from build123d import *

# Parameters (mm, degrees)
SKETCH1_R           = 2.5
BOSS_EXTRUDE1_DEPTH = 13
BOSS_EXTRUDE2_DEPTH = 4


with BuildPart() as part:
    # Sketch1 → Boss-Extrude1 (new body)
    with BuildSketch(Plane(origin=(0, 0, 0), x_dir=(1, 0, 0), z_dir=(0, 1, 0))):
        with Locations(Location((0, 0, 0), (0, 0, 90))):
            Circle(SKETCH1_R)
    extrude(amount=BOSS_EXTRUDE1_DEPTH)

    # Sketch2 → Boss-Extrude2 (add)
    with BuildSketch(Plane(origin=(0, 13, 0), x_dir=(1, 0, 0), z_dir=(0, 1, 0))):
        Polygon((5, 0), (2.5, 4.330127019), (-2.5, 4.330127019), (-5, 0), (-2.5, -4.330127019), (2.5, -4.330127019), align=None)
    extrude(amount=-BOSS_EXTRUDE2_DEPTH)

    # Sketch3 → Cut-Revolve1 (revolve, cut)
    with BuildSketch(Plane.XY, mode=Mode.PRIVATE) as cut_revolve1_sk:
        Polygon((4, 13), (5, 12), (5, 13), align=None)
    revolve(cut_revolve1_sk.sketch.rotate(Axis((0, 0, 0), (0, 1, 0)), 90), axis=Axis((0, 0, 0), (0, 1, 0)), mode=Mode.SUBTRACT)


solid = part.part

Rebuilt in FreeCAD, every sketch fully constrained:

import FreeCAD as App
import Part
import Sketcher

V = App.Vector
Q = App.Units.Quantity

doc = App.newDocument("Part")
body = doc.addObject("PartDesign::Body", "Body")

sketch1 = doc.addObject("Sketcher::SketchObject", "Sketch")
body.addObject(sketch1)
sketch1.AttachmentSupport = (doc.XZ_Plane, [""])
sketch1.MapMode = "FlatFace"
sketch1.addGeometry(Part.Circle(V(0, 0, 0), V(0, 0, 1), 2.5), False)
sketch1.addConstraint([
    Sketcher.Constraint("Coincident", 0, 3, -1, 1),
    Sketcher.Constraint("Diameter", 0, 5.0),
])
pad1 = doc.addObject("PartDesign::Pad", "Pad")
body.addObject(pad1)
pad1.Profile = sketch1
pad1.Length = 13
pad1.Reversed = True

sketch2 = doc.addObject("Sketcher::SketchObject", "Sketch001")
body.addObject(sketch2)
sketch2.AttachmentSupport = (doc.XZ_Plane, [""])
sketch2.MapMode = "FlatFace"
sketch2.AttachmentOffset = App.Placement(V(0, 0, -13), App.Rotation())
sketch2.addGeometry([
    Part.LineSegment(V(5, 0, 0), V(2, -4, 0)),
    Part.LineSegment(V(2, -4, 0), V(-2, -4, 0)),
    Part.LineSegment(V(-2, -4, 0), V(-5, 0, 0)),
    Part.LineSegment(V(-5, 0, 0), V(-2, 4, 0)),
    Part.LineSegment(V(-2, 4, 0), V(2, 4, 0)),
    Part.LineSegment(V(2, 4, 0), V(5, 0, 0)),
], False)
sketch2.addConstraint([
    Sketcher.Constraint("Coincident", 0, 2, 1, 1),
    Sketcher.Constraint("Coincident", 1, 2, 2, 1),
    Sketcher.Constraint("Coincident", 2, 2, 3, 1),
    Sketcher.Constraint("Coincident", 3, 2, 4, 1),
    Sketcher.Constraint("Coincident", 4, 2, 5, 1),
    Sketcher.Constraint("Coincident", 5, 2, 0, 1),
    Sketcher.Constraint("Horizontal", 1),
    Sketcher.Constraint("Horizontal", 4),
    Sketcher.Constraint("Symmetric", 0, 2, 3, 2, -1, 1),
    Sketcher.Constraint("Symmetric", 2, 2, 5, 2, -1, 1),
    Sketcher.Constraint("PointOnObject", 2, 2, -1),
    Sketcher.Constraint("Parallel", 2, 5),
    Sketcher.Constraint("Vertical", 1, 2, 3, 2),
    Sketcher.Constraint("DistanceX", 1, 2, 1, 1, 5.0),
    Sketcher.Constraint("Angle", 0, Q("-120 deg")),
    Sketcher.Constraint("Distance", 0, 5.0),
])
pad2 = doc.addObject("PartDesign::Pad", "Pad001")
body.addObject(pad2)
pad2.Profile = sketch2
pad2.Length = 4

sketch3 = doc.addObject("Sketcher::SketchObject", "Sketch002")
body.addObject(sketch3)
sketch3.AttachmentSupport = (doc.XY_Plane, [""])
sketch3.MapMode = "FlatFace"
sketch3.addGeometry([
    Part.LineSegment(V(4, 13, 0), V(5, 12, 0)),
    Part.LineSegment(V(5, 12, 0), V(5, 13, 0)),
    Part.LineSegment(V(5, 13, 0), V(4, 13, 0)),
], False)
sketch3.addConstraint([
    Sketcher.Constraint("Coincident", 0, 2, 1, 1),
    Sketcher.Constraint("Coincident", 1, 2, 2, 1),
    Sketcher.Constraint("Coincident", 2, 2, 0, 1),
    Sketcher.Constraint("Vertical", 1),
    Sketcher.Constraint("Horizontal", 2),
    Sketcher.Constraint("Equal", 2, 1),
    Sketcher.Constraint("DistanceX", 2, 2, 2, 1, 1.0),
    Sketcher.Constraint("DistanceX", -1, 1, 0, 2, 5.0),
    Sketcher.Constraint("DistanceY", -1, 1, 0, 2, 12.0),
])
groove = doc.addObject("PartDesign::Groove", "Groove")
body.addObject(groove)
groove.Profile = sketch3
groove.ReferenceAxis = (sketch3, ["V_Axis"])
groove.Angle = 360

doc.recompute()
